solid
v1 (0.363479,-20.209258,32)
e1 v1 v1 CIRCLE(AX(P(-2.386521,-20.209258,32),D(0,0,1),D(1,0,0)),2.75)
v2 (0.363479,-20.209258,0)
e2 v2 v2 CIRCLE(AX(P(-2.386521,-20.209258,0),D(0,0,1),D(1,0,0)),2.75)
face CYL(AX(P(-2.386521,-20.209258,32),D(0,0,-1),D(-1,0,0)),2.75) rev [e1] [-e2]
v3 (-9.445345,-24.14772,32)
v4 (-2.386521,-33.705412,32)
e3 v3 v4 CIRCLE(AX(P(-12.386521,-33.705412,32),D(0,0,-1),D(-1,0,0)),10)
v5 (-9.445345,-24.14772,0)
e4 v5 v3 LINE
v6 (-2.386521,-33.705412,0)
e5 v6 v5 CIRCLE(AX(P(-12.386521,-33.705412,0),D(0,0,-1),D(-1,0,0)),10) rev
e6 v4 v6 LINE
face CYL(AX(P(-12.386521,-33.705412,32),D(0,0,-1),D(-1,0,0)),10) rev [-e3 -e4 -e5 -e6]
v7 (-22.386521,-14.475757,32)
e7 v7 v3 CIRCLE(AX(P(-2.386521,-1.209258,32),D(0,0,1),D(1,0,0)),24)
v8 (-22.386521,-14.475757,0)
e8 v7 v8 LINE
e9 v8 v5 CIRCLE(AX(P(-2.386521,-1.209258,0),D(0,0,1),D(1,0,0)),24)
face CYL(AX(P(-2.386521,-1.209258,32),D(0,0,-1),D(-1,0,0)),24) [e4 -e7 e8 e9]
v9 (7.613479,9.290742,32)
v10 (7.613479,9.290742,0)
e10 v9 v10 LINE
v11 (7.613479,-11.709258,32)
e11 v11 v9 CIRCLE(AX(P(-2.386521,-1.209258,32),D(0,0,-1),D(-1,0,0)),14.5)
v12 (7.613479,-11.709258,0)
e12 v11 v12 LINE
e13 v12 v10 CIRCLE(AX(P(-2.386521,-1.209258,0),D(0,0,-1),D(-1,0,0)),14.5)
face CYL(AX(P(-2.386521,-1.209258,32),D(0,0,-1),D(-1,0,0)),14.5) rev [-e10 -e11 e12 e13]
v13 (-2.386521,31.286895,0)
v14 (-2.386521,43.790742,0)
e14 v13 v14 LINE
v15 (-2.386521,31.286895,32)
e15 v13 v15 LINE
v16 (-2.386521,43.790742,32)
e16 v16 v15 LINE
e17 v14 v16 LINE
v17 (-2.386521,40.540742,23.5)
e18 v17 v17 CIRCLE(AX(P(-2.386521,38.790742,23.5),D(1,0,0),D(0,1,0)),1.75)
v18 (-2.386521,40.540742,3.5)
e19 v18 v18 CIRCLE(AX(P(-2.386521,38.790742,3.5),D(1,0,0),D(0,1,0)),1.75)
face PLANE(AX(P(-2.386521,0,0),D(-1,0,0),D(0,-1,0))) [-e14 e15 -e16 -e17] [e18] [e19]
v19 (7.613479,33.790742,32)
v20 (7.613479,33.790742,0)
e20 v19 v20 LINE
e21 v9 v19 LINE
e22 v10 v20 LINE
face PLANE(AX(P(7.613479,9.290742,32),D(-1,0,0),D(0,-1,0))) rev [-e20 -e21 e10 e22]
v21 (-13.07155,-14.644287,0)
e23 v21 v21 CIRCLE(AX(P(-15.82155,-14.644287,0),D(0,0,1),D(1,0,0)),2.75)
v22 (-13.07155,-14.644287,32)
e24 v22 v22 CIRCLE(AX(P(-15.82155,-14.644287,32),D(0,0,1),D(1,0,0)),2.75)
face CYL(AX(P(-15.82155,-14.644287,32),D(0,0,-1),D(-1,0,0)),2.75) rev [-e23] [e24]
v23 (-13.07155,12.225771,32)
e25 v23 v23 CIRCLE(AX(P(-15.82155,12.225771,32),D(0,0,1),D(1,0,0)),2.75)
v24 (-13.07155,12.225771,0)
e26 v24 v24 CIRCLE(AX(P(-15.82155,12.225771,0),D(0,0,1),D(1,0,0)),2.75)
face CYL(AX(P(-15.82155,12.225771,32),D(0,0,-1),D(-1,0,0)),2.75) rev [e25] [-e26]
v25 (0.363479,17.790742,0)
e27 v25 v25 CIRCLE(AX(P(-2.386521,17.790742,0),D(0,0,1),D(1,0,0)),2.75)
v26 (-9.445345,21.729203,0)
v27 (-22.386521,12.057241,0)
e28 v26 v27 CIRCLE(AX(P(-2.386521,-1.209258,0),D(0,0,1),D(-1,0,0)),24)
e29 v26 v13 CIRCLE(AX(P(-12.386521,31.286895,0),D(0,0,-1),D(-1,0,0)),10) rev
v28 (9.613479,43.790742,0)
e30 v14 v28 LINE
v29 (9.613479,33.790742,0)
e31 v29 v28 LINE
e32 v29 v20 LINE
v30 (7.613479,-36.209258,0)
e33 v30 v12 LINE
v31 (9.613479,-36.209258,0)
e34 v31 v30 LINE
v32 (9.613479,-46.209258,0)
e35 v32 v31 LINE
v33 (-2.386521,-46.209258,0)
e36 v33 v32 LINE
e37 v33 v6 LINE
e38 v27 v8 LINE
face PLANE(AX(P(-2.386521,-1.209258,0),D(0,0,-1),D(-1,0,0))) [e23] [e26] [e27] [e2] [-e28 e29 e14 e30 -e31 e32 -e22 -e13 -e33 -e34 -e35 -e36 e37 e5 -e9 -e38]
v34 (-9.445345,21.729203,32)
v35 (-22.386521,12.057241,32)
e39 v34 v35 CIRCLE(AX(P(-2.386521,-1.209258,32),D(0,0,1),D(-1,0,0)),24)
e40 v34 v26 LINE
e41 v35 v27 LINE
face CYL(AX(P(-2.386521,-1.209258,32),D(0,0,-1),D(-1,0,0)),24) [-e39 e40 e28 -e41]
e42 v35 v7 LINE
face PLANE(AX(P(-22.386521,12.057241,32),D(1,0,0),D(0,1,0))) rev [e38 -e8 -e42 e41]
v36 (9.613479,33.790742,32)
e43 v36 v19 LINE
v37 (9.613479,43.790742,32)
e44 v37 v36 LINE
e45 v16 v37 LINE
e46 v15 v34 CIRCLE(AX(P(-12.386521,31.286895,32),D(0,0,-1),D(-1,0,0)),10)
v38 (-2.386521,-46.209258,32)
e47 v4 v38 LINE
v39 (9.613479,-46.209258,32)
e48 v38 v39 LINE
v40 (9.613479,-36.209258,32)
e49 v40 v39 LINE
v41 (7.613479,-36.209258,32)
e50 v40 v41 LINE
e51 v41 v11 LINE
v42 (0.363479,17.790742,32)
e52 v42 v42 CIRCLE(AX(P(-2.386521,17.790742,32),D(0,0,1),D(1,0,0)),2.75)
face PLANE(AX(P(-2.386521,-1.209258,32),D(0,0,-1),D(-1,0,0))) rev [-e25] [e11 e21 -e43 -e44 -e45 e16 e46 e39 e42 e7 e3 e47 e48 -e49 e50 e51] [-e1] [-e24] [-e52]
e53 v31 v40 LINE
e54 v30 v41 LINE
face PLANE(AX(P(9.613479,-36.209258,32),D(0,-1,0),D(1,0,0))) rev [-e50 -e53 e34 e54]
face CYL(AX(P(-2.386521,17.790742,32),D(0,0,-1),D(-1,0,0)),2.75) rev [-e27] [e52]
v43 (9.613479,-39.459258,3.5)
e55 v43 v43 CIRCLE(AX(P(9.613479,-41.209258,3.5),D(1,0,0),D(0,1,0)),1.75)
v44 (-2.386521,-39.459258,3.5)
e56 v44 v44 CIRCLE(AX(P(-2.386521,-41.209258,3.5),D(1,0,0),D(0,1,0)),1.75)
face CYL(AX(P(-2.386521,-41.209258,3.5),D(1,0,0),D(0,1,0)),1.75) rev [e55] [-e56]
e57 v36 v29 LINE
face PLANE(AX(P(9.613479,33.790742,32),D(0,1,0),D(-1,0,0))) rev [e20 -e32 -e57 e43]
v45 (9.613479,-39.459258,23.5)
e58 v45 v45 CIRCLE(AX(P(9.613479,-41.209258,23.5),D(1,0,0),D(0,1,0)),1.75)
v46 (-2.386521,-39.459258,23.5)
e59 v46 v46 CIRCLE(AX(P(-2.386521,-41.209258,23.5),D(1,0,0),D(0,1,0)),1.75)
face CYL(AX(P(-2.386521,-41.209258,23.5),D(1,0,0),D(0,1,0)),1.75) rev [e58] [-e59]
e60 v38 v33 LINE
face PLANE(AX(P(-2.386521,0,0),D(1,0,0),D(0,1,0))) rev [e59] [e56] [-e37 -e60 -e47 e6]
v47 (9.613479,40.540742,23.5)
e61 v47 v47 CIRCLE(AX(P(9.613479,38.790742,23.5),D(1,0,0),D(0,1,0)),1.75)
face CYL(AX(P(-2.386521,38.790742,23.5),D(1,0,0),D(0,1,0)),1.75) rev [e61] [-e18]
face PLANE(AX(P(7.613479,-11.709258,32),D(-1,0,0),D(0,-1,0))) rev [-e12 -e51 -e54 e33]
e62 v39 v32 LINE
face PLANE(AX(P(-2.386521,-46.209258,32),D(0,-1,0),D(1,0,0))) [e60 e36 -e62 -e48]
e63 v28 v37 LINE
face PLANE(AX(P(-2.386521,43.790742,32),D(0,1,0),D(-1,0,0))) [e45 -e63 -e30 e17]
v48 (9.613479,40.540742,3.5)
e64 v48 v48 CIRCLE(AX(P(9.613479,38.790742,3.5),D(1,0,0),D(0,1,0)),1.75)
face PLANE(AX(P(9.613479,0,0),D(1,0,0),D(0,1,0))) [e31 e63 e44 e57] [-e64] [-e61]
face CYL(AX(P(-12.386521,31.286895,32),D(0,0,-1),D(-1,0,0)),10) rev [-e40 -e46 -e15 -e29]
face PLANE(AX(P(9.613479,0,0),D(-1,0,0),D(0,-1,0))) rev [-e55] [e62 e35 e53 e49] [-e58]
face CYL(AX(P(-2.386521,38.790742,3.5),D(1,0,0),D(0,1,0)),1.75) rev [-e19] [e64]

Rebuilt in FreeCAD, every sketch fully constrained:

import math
import FreeCAD as App
import Part
import Sketcher
from FreeCAD import Vector


def edges_at(feature, points):
    """Names of the edges that pass closest to the given points."""
    edges = feature.Shape.Edges
    near = lambda p: min(range(len(edges)), key=lambda i: edges[i].distToShape(Part.Vertex(*p))[0])
    return sorted({f"Edge{near(p) + 1}" for p in points})

doc = App.newDocument("Part")
body = doc.addObject("PartDesign::Body", "Body")

# Sketch on XY plane
sketch1 = body.newObject("Sketcher::SketchObject", "Sketch")
sketch1.AttachmentSupport = (doc.getObject("XY_Plane"), [""])
sketch1.MapMode = "FlatFace"
sketch1.addGeometry(Part.LineSegment(Vector(-22.4, 12.1, 0), Vector(-22.4, -14.5, 0)), False)
sketch1.addGeometry(Part.ArcOfCircle(Part.Circle(Vector(-2.4, -1.2, 0), Vector(0, 0, 1), 24), math.radians(-146), math.radians(-90)), False)
sketch1.addGeometry(Part.LineSegment(Vector(-2.4, -25.2, 0), Vector(7.6, -25.2, 0)), False)
sketch1.addGeometry(Part.LineSegment(Vector(7.6, -25.2, 0), Vector(7.6, -11.7, 0)), False)
sketch1.addGeometry(Part.ArcOfCircle(Part.Circle(Vector(-2.4, -1.2, 0), Vector(0, 0, 1), 14.5), math.radians(46), math.radians(314)), False)
sketch1.addGeometry(Part.LineSegment(Vector(7.6, 9.3, 0), Vector(7.6, 22.8, 0)), False)
sketch1.addGeometry(Part.LineSegment(Vector(7.6, 22.8, 0), Vector(-2.4, 22.8, 0)), False)
sketch1.addGeometry(Part.ArcOfCircle(Part.Circle(Vector(-2.4, -1.2, 0), Vector(0, 0, 1), 24), math.radians(90), math.radians(146)), False)
sketch1.addGeometry(Part.Circle(Vector(-15.8, -14.6, 0), Vector(0, 0, 1), 2.8), False)
sketch1.addGeometry(Part.Circle(Vector(-2.4, -20.2, 0), Vector(0, 0, 1), 2.8), False)
sketch1.addGeometry(Part.Circle(Vector(-15.8, 12.2, 0), Vector(0, 0, 1), 2.8), False)
sketch1.addGeometry(Part.Circle(Vector(-2.4, 17.8, 0), Vector(0, 0, 1), 2.8), False)
sketch1.addConstraint(Sketcher.Constraint("Coincident", 0, 2, 1, 1))
sketch1.addConstraint(Sketcher.Constraint("Tangent", 1, 2, 2, 1))
sketch1.addConstraint(Sketcher.Constraint("Coincident", 2, 2, 3, 1))
sketch1.addConstraint(Sketcher.Constraint("Coincident", 3, 2, 4, 2))
sketch1.addConstraint(Sketcher.Constraint("Coincident", 4, 1, 5, 1))
sketch1.addConstraint(Sketcher.Constraint("Coincident", 5, 2, 6, 1))
sketch1.addConstraint(Sketcher.Constraint("Tangent", 6, 2, 7, 1))
sketch1.addConstraint(Sketcher.Constraint("Coincident", 7, 2, 0, 1))
sketch1.addConstraint(Sketcher.Constraint("Vertical", 0))
sketch1.addConstraint(Sketcher.Constraint("Horizontal", 2))
sketch1.addConstraint(Sketcher.Constraint("Vertical", 3))
sketch1.addConstraint(Sketcher.Constraint("Vertical", 5))
sketch1.addConstraint(Sketcher.Constraint("Horizontal", 6))
sketch1.addConstraint(Sketcher.Constraint("Coincident", 4, 3, 1, 3))
sketch1.addConstraint(Sketcher.Constraint("Coincident", 7, 3, 1, 3))
sketch1.addConstraint(Sketcher.Constraint("Equal", 1, 7))
sketch1.addConstraint(Sketcher.Constraint("Equal", 8, 9))
sketch1.addConstraint(Sketcher.Constraint("Equal", 9, 10))
sketch1.addConstraint(Sketcher.Constraint("Equal", 10, 11))
sketch1.addConstraint(Sketcher.Constraint("Vertical", 7, 3, 9, 3))
sketch1.addConstraint(Sketcher.Constraint("Vertical", 8, 3, 10, 3))
sketch1.addConstraint(Sketcher.Constraint("Vertical", 9, 3, 11, 3))
sketch1.addConstraint(Sketcher.Constraint("Vertical", 3, 2, 4, 1))
sketch1.addConstraint(Sketcher.Constraint("Radius", 1, 24.0))
sketch1.addConstraint(Sketcher.Constraint("Diameter", 8, 5.5))
sketch1.addConstraint(Sketcher.Constraint("Radius", 4, 14.5))
sketch1.addConstraint(Sketcher.Constraint("DistanceX", 2, 1, 2, 2, 10.0))
sketch1.addConstraint(Sketcher.Constraint("DistanceY", 9, 3, 4, 3, 19.0))
sketch1.addConstraint(Sketcher.Constraint("DistanceY", 1, 3, 11, 3, 19.0))
sketch1.addConstraint(Sketcher.Constraint("DistanceX", 0, 2, 9, 3, 20.0))
sketch1.addConstraint(Sketcher.Constraint("DistanceX", 1, 3, -1, 1, 2.386521))
sketch1.addConstraint(Sketcher.Constraint("DistanceY", 1, 3, -1, 1, 1.209258))
sketch1.addConstraint(Sketcher.Constraint("DistanceX", 8, 3, -1, 1, 15.82155))
sketch1.addConstraint(Sketcher.Constraint("DistanceY", -1, 1, 10, 3, 12.225771))
sketch1.addConstraint(Sketcher.Constraint("DistanceY", 8, 3, 4, 3, 13.435029))
pad1 = body.newObject("PartDesign::Pad", "Pad")
pad1.Profile = sketch1
pad1.Length = 32

# Sketch on YZ plane
sketch2 = body.newObject("Sketcher::SketchObject", "Sketch001")
sketch2.AttachmentSupport = (doc.getObject("YZ_Plane"), [""])
sketch2.MapMode = "FlatFace"
sketch2.AttachmentOffset = App.Placement(Vector(0, 0, 7.613479), App.Rotation())
sketch2.addGeometry(Part.LineSegment(Vector(43.8, 32, 0), Vector(22.8, 32, 0)), False)
sketch2.addGeometry(Part.LineSegment(Vector(22.8, 32, 0), Vector(22.8, 0, 0)), False)
sketch2.addGeometry(Part.LineSegment(Vector(22.8, 0, 0), Vector(43.8, 0, 0)), False)
sketch2.addGeometry(Part.LineSegment(Vector(43.8, 0, 0), Vector(43.8, 32, 0)), False)
sketch2.addGeometry(Part.Circle(Vector(38.8, 23.5, 0), Vector(0, 0, 1), 1.8), False)
sketch2.addGeometry(Part.Circle(Vector(38.8, 3.5, 0), Vector(0, 0, 1), 1.8), False)
sketch2.addGeometry(Part.LineSegment(Vector(-25.2, 32, 0), Vector(-46.2, 32, 0)), False)
sketch2.addGeometry(Part.LineSegment(Vector(-46.2, 32, 0), Vector(-46.2, 0, 0)), False)
sketch2.addGeometry(Part.LineSegment(Vector(-46.2, 0, 0), Vector(-25.2, 0, 0)), False)
sketch2.addGeometry(Part.LineSegment(Vector(-25.2, 0, 0), Vector(-25.2, 32, 0)), False)
sketch2.addGeometry(Part.Circle(Vector(-41.2, 23.5, 0), Vector(0, 0, 1), 1.8), False)
sketch2.addGeometry(Part.Circle(Vector(-41.2, 3.5, 0), Vector(0, 0, 1), 1.8), False)
sketch2.addConstraint(Sketcher.Constraint("Coincident", 0, 2, 1, 1))
sketch2.addConstraint(Sketcher.Constraint("Coincident", 1, 2, 2, 1))
sketch2.addConstraint(Sketcher.Constraint("Coincident", 2, 2, 3, 1))
sketch2.addConstraint(Sketcher.Constraint("Coincident", 3, 2, 0, 1))
sketch2.addConstraint(Sketcher.Constraint("Coincident", 6, 2, 7, 1))
sketch2.addConstraint(Sketcher.Constraint("Coincident", 7, 2, 8, 1))
sketch2.addConstraint(Sketcher.Constraint("Coincident", 8, 2, 9, 1))
sketch2.addConstraint(Sketcher.Constraint("Coincident", 9, 2, 6, 1))
sketch2.addConstraint(Sketcher.Constraint("Horizontal", 0))
sketch2.addConstraint(Sketcher.Constraint("Vertical", 1))
sketch2.addConstraint(Sketcher.Constraint("Horizontal", 2))
sketch2.addConstraint(Sketcher.Constraint("Vertical", 3))
sketch2.addConstraint(Sketcher.Constraint("Horizontal", 6))
sketch2.addConstraint(Sketcher.Constraint("Vertical", 7))
sketch2.addConstraint(Sketcher.Constraint("Horizontal", 8))
sketch2.addConstraint(Sketcher.Constraint("Vertical", 9))
sketch2.addConstraint(Sketcher.Constraint("Equal", 4, 5))
sketch2.addConstraint(Sketcher.Constraint("Equal", 5, 10))
sketch2.addConstraint(Sketcher.Constraint("Equal", 10, 11))
sketch2.addConstraint(Sketcher.Constraint("PointOnObject", 1, 2, -1))
sketch2.addConstraint(Sketcher.Constraint("PointOnObject", 7, 2, -1))
sketch2.addConstraint(Sketcher.Constraint("Horizontal", 4, 3, 10, 3))
sketch2.addConstraint(Sketcher.Constraint("Horizontal", 5, 3, 11, 3))
sketch2.addConstraint(Sketcher.Constraint("Horizontal", 3, 2, 6, 2))
sketch2.addConstraint(Sketcher.Constraint("Vertical", 4, 3, 5, 3))
sketch2.addConstraint(Sketcher.Constraint("Vertical", 10, 3, 11, 3))
sketch2.addConstraint(Sketcher.Constraint("Equal", 2, 6))
sketch2.addConstraint(Sketcher.Constraint("Diameter", 4, 3.5))
sketch2.addConstraint(Sketcher.Constraint("DistanceX", 0, 2, 0, 1, 21.0))
sketch2.addConstraint(Sketcher.Constraint("DistanceY", 1, 2, 1, 1, 32.0))
sketch2.addConstraint(Sketcher.Constraint("DistanceY", 5, 3, 4, 3, 20.0))
sketch2.addConstraint(Sketcher.Constraint("DistanceX", 10, 3, 4, 3, 80.0))
sketch2.addConstraint(Sketcher.Constraint("DistanceX", 0, 2, 4, 3, 16.0))
sketch2.addConstraint(Sketcher.Constraint("DistanceX", 6, 2, 10, 3, 5.0))
sketch2.addConstraint(Sketcher.Constraint("DistanceY", -1, 1, 4, 3, 23.5))
sketch2.addConstraint(Sketcher.Constraint("DistanceX", -1, 1, 4, 3, 38.790742))
pad2 = body.newObject("PartDesign::Pad", "Pad001")
pad2.Profile = sketch2
pad2.Length = 10
pad2.Reversed = True

# Sketch on YZ plane
sketch3 = body.newObject("Sketcher::SketchObject", "Sketch002")
sketch3.AttachmentSupport = (doc.getObject("YZ_Plane"), [""])
sketch3.MapMode = "FlatFace"
sketch3.AttachmentOffset = App.Placement(Vector(0, 0, 9.613479), App.Rotation())
sketch3.addGeometry(Part.LineSegment(Vector(43.8, 32, 0), Vector(33.8, 32, 0)), False)
sketch3.addGeometry(Part.LineSegment(Vector(33.8, 32, 0), Vector(33.8, 0, 0)), False)
sketch3.addGeometry(Part.LineSegment(Vector(33.8, 0, 0), Vector(43.8, 0, 0)), False)
sketch3.addGeometry(Part.LineSegment(Vector(43.8, 0, 0), Vector(43.8, 32, 0)), False)
sketch3.addGeometry(Part.Circle(Vector(38.8, 23.5, 0), Vector(0, 0, 1), 1.8), False)
sketch3.addGeometry(Part.Circle(Vector(38.8, 3.5, 0), Vector(0, 0, 1), 1.8), False)
sketch3.addGeometry(Part.LineSegment(Vector(-36.2, 32, 0), Vector(-46.2, 32, 0)), False)
sketch3.addGeometry(Part.LineSegment(Vector(-46.2, 32, 0), Vector(-46.2, 0, 0)), False)
sketch3.addGeometry(Part.LineSegment(Vector(-46.2, 0, 0), Vector(-36.2, 0, 0)), False)
sketch3.addGeometry(Part.LineSegment(Vector(-36.2, 0, 0), Vector(-36.2, 32, 0)), False)
sketch3.addGeometry(Part.Circle(Vector(-41.2, 23.5, 0), Vector(0, 0, 1), 1.8), False)
sketch3.addGeometry(Part.Circle(Vector(-41.2, 3.5, 0), Vector(0, 0, 1), 1.8), False)
sketch3.addConstraint(Sketcher.Constraint("Coincident", 0, 2, 1, 1))
sketch3.addConstraint(Sketcher.Constraint("Coincident", 1, 2, 2, 1))
sketch3.addConstraint(Sketcher.Constraint("Coincident", 2, 2, 3, 1))
sketch3.addConstraint(Sketcher.Constraint("Coincident", 3, 2, 0, 1))
sketch3.addConstraint(Sketcher.Constraint("Coincident", 6, 2, 7, 1))
sketch3.addConstraint(Sketcher.Constraint("Coincident", 7, 2, 8, 1))
sketch3.addConstraint(Sketcher.Constraint("Coincident", 8, 2, 9, 1))
sketch3.addConstraint(Sketcher.Constraint("Coincident", 9, 2, 6, 1))
sketch3.addConstraint(Sketcher.Constraint("Horizontal", 0))
sketch3.addConstraint(Sketcher.Constraint("Vertical", 1))
sketch3.addConstraint(Sketcher.Constraint("Horizontal", 2))
sketch3.addConstraint(Sketcher.Constraint("Vertical", 3))
sketch3.addConstraint(Sketcher.Constraint("Horizontal", 6))
sketch3.addConstraint(Sketcher.Constraint("Vertical", 7))
sketch3.addConstraint(Sketcher.Constraint("Horizontal", 8))
sketch3.addConstraint(Sketcher.Constraint("Vertical", 9))
sketch3.addConstraint(Sketcher.Constraint("Equal", 4, 5))
sketch3.addConstraint(Sketcher.Constraint("Equal", 5, 10))
sketch3.addConstraint(Sketcher.Constraint("Equal", 10, 11))
sketch3.addConstraint(Sketcher.Constraint("PointOnObject", 1, 2, -1))
sketch3.addConstraint(Sketcher.Constraint("PointOnObject", 7, 2, -1))
sketch3.addConstraint(Sketcher.Constraint("Horizontal", 4, 3, 10, 3))
sketch3.addConstraint(Sketcher.Constraint("Horizontal", 5, 3, 11, 3))
sketch3.addConstraint(Sketcher.Constraint("Horizontal", 3, 2, 6, 2))
sketch3.addConstraint(Sketcher.Constraint("Vertical", 4, 3, 5, 3))
sketch3.addConstraint(Sketcher.Constraint("Vertical", 10, 3, 11, 3))
sketch3.addConstraint(Sketcher.Constraint("Equal", 2, 6))
sketch3.addConstraint(Sketcher.Constraint("Diameter", 4, 3.5))
sketch3.addConstraint(Sketcher.Constraint("DistanceX", 0, 2, 0, 1, 10.0))
sketch3.addConstraint(Sketcher.Constraint("DistanceY", 1, 2, 1, 1, 32.0))
sketch3.addConstraint(Sketcher.Constraint("DistanceY", 5, 3, 4, 3, 20.0))
sketch3.addConstraint(Sketcher.Constraint("DistanceX", 10, 3, 4, 3, 80.0))
sketch3.addConstraint(Sketcher.Constraint("DistanceX", 0, 2, 4, 3, 5.0))
sketch3.addConstraint(Sketcher.Constraint("DistanceX", 6, 2, 10, 3, 5.0))
sketch3.addConstraint(Sketcher.Constraint("DistanceY", -1, 1, 4, 3, 23.5))
sketch3.addConstraint(Sketcher.Constraint("DistanceX", -1, 1, 4, 3, 38.790742))
pad3 = body.newObject("PartDesign::Pad", "Pad002")
pad3.Profile = sketch3
pad3.Length = 2
pad3.Reversed = True
doc.recompute()

fillet = body.newObject("PartDesign::Fillet", "Fillet")
fillet.Base = (pad3, edges_at(pad3, [(-2.387, 22.791, 16), (-2.387, -25.209, 16)]))
fillet.Radius = 10

doc.recompute()
